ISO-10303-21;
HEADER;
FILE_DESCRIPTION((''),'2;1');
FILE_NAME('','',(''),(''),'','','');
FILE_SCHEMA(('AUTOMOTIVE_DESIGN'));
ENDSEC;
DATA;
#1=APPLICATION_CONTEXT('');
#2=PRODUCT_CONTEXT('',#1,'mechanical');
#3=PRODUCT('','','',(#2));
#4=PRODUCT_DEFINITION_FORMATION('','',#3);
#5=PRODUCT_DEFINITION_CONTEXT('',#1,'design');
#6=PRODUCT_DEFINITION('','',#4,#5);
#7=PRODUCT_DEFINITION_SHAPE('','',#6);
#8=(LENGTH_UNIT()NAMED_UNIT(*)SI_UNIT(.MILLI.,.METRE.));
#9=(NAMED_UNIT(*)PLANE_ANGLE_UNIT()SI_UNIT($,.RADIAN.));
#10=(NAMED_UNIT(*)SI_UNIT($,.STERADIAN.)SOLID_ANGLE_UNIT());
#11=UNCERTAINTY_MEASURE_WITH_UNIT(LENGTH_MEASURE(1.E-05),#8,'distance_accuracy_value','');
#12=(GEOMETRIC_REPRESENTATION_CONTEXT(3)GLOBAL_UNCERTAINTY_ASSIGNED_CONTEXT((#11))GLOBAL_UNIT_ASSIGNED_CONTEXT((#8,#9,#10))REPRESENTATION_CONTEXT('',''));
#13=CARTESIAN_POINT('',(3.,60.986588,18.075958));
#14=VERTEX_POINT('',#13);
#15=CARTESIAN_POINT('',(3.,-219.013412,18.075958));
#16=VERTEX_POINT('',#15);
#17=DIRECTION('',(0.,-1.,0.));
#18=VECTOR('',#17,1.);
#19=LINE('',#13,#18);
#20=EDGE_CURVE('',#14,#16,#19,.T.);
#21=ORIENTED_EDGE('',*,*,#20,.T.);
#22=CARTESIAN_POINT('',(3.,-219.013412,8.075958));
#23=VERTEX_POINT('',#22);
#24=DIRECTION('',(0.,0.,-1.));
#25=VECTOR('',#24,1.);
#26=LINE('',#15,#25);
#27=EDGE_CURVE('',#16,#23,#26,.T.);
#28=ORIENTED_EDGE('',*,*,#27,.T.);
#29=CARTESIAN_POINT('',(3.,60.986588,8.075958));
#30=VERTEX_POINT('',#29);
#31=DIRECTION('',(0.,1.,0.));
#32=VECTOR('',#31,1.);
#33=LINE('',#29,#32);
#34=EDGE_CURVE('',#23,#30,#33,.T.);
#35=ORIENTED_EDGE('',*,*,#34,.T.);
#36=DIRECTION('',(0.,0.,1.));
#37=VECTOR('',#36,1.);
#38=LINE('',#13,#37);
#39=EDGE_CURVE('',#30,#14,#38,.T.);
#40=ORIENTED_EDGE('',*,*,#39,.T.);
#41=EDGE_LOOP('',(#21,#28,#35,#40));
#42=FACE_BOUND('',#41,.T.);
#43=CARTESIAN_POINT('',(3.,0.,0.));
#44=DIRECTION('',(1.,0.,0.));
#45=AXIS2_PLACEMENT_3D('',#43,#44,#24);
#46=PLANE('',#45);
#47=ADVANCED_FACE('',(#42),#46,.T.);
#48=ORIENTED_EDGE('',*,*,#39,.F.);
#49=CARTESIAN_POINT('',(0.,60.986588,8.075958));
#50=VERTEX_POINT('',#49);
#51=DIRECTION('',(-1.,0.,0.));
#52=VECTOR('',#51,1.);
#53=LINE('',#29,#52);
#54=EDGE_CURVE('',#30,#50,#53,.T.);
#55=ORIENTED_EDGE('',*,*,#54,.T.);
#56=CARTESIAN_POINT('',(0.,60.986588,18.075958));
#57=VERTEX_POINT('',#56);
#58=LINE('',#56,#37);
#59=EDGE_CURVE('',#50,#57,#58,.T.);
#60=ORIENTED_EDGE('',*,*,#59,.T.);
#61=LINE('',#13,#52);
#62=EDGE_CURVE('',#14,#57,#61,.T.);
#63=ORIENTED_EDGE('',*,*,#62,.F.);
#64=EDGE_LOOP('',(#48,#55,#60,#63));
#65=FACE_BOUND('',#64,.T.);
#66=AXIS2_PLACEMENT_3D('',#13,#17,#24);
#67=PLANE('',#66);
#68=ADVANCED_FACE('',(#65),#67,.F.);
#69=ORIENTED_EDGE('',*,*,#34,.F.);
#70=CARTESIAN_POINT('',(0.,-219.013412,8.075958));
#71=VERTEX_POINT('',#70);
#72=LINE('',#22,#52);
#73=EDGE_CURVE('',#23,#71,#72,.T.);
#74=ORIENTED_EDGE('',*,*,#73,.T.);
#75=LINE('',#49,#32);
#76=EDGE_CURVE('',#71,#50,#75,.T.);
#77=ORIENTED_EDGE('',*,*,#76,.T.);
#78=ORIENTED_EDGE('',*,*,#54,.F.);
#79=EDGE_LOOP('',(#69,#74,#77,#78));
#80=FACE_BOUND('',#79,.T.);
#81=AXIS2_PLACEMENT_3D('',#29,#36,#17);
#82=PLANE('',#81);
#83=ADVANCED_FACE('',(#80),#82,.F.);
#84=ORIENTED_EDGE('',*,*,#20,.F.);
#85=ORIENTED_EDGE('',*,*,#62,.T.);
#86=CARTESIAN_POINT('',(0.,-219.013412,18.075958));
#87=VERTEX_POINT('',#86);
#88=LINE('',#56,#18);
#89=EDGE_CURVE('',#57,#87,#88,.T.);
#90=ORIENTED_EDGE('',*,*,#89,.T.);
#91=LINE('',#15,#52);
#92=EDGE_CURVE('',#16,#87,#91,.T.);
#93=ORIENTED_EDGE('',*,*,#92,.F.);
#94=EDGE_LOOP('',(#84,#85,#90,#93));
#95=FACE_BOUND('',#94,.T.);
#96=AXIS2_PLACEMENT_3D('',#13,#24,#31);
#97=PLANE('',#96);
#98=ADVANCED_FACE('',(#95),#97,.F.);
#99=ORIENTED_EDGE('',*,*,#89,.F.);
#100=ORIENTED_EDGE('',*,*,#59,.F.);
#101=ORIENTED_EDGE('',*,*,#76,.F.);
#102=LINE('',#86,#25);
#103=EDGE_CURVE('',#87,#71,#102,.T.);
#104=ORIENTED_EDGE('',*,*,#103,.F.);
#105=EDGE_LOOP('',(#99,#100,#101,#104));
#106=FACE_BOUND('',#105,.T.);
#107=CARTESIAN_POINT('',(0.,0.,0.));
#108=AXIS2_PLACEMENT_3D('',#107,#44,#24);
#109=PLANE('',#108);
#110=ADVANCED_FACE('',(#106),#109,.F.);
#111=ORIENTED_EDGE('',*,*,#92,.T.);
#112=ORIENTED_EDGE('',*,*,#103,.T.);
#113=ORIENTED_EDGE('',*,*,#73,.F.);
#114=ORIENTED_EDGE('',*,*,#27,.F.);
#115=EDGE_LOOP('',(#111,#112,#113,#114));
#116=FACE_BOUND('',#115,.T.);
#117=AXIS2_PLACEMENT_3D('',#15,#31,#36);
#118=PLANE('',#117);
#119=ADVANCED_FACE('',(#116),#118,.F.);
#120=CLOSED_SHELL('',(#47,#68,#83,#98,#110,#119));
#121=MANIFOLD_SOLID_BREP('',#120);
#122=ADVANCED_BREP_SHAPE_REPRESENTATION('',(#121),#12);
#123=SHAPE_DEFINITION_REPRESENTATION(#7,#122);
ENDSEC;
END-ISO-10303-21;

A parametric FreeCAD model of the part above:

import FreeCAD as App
import Part
import Sketcher
from FreeCAD import Vector
Q = App.Units.Quantity

doc = App.newDocument("Part")
params = doc.addObject("Spreadsheet::Sheet", "Params")
for row, (alias, value) in enumerate([
    ("sketch1_width", "280 mm"),
    ("sketch1_height", "10 mm"),
    ("pad1_length", "3 mm"),
], start=1):
    params.set(f"A{row}", alias)
    params.set(f"B{row}", "=" + value)
    params.setAlias(f"B{row}", alias)

body = doc.addObject("PartDesign::Body", "Body")

# Sketch on YZ plane
sketch1 = body.newObject("Sketcher::SketchObject", "Sketch")
sketch1.AttachmentSupport = (doc.getObject("YZ_Plane"), [""])
sketch1.MapMode = "FlatFace"
sketch1.addGeometry([
    Part.LineSegment(Vector(61, 18, 0), Vector(-219, 18, 0)),
    Part.LineSegment(Vector(-219, 18, 0), Vector(-219, 8, 0)),
    Part.LineSegment(Vector(-219, 8, 0), Vector(61, 8, 0)),
    Part.LineSegment(Vector(61, 8, 0), Vector(61, 18, 0)),
], False)
sketch1.addConstraint([
    Sketcher.Constraint("Coincident", 0, 2, 1, 1),
    Sketcher.Constraint("Coincident", 1, 2, 2, 1),
    Sketcher.Constraint("Coincident", 2, 2, 3, 1),
    Sketcher.Constraint("Coincident", 3, 2, 0, 1),
    Sketcher.Constraint("Horizontal", 0),
    Sketcher.Constraint("Vertical", 1),
    Sketcher.Constraint("Horizontal", 2),
    Sketcher.Constraint("Vertical", 3),
    Sketcher.Constraint("DistanceX", 0, 2, 0, 1, Q("280 mm")),
    Sketcher.Constraint("DistanceY", 1, 2, 1, 1, Q("10 mm")),
    Sketcher.Constraint("DistanceX", 0, 2, -1, 1, Q("219.013412 mm")),
    Sketcher.Constraint("DistanceY", -1, 1, 0, 2, Q("18.075958 mm")),
])
sketch1.setExpression("Constraints[8]", "Params.sketch1_width")
sketch1.setExpression("Constraints[9]", "Params.sketch1_height")
pad1 = body.newObject("PartDesign::Pad", "Pad")
pad1.Profile = sketch1
pad1.setExpression("Length", "Params.pad1_length")

doc.recompute()
